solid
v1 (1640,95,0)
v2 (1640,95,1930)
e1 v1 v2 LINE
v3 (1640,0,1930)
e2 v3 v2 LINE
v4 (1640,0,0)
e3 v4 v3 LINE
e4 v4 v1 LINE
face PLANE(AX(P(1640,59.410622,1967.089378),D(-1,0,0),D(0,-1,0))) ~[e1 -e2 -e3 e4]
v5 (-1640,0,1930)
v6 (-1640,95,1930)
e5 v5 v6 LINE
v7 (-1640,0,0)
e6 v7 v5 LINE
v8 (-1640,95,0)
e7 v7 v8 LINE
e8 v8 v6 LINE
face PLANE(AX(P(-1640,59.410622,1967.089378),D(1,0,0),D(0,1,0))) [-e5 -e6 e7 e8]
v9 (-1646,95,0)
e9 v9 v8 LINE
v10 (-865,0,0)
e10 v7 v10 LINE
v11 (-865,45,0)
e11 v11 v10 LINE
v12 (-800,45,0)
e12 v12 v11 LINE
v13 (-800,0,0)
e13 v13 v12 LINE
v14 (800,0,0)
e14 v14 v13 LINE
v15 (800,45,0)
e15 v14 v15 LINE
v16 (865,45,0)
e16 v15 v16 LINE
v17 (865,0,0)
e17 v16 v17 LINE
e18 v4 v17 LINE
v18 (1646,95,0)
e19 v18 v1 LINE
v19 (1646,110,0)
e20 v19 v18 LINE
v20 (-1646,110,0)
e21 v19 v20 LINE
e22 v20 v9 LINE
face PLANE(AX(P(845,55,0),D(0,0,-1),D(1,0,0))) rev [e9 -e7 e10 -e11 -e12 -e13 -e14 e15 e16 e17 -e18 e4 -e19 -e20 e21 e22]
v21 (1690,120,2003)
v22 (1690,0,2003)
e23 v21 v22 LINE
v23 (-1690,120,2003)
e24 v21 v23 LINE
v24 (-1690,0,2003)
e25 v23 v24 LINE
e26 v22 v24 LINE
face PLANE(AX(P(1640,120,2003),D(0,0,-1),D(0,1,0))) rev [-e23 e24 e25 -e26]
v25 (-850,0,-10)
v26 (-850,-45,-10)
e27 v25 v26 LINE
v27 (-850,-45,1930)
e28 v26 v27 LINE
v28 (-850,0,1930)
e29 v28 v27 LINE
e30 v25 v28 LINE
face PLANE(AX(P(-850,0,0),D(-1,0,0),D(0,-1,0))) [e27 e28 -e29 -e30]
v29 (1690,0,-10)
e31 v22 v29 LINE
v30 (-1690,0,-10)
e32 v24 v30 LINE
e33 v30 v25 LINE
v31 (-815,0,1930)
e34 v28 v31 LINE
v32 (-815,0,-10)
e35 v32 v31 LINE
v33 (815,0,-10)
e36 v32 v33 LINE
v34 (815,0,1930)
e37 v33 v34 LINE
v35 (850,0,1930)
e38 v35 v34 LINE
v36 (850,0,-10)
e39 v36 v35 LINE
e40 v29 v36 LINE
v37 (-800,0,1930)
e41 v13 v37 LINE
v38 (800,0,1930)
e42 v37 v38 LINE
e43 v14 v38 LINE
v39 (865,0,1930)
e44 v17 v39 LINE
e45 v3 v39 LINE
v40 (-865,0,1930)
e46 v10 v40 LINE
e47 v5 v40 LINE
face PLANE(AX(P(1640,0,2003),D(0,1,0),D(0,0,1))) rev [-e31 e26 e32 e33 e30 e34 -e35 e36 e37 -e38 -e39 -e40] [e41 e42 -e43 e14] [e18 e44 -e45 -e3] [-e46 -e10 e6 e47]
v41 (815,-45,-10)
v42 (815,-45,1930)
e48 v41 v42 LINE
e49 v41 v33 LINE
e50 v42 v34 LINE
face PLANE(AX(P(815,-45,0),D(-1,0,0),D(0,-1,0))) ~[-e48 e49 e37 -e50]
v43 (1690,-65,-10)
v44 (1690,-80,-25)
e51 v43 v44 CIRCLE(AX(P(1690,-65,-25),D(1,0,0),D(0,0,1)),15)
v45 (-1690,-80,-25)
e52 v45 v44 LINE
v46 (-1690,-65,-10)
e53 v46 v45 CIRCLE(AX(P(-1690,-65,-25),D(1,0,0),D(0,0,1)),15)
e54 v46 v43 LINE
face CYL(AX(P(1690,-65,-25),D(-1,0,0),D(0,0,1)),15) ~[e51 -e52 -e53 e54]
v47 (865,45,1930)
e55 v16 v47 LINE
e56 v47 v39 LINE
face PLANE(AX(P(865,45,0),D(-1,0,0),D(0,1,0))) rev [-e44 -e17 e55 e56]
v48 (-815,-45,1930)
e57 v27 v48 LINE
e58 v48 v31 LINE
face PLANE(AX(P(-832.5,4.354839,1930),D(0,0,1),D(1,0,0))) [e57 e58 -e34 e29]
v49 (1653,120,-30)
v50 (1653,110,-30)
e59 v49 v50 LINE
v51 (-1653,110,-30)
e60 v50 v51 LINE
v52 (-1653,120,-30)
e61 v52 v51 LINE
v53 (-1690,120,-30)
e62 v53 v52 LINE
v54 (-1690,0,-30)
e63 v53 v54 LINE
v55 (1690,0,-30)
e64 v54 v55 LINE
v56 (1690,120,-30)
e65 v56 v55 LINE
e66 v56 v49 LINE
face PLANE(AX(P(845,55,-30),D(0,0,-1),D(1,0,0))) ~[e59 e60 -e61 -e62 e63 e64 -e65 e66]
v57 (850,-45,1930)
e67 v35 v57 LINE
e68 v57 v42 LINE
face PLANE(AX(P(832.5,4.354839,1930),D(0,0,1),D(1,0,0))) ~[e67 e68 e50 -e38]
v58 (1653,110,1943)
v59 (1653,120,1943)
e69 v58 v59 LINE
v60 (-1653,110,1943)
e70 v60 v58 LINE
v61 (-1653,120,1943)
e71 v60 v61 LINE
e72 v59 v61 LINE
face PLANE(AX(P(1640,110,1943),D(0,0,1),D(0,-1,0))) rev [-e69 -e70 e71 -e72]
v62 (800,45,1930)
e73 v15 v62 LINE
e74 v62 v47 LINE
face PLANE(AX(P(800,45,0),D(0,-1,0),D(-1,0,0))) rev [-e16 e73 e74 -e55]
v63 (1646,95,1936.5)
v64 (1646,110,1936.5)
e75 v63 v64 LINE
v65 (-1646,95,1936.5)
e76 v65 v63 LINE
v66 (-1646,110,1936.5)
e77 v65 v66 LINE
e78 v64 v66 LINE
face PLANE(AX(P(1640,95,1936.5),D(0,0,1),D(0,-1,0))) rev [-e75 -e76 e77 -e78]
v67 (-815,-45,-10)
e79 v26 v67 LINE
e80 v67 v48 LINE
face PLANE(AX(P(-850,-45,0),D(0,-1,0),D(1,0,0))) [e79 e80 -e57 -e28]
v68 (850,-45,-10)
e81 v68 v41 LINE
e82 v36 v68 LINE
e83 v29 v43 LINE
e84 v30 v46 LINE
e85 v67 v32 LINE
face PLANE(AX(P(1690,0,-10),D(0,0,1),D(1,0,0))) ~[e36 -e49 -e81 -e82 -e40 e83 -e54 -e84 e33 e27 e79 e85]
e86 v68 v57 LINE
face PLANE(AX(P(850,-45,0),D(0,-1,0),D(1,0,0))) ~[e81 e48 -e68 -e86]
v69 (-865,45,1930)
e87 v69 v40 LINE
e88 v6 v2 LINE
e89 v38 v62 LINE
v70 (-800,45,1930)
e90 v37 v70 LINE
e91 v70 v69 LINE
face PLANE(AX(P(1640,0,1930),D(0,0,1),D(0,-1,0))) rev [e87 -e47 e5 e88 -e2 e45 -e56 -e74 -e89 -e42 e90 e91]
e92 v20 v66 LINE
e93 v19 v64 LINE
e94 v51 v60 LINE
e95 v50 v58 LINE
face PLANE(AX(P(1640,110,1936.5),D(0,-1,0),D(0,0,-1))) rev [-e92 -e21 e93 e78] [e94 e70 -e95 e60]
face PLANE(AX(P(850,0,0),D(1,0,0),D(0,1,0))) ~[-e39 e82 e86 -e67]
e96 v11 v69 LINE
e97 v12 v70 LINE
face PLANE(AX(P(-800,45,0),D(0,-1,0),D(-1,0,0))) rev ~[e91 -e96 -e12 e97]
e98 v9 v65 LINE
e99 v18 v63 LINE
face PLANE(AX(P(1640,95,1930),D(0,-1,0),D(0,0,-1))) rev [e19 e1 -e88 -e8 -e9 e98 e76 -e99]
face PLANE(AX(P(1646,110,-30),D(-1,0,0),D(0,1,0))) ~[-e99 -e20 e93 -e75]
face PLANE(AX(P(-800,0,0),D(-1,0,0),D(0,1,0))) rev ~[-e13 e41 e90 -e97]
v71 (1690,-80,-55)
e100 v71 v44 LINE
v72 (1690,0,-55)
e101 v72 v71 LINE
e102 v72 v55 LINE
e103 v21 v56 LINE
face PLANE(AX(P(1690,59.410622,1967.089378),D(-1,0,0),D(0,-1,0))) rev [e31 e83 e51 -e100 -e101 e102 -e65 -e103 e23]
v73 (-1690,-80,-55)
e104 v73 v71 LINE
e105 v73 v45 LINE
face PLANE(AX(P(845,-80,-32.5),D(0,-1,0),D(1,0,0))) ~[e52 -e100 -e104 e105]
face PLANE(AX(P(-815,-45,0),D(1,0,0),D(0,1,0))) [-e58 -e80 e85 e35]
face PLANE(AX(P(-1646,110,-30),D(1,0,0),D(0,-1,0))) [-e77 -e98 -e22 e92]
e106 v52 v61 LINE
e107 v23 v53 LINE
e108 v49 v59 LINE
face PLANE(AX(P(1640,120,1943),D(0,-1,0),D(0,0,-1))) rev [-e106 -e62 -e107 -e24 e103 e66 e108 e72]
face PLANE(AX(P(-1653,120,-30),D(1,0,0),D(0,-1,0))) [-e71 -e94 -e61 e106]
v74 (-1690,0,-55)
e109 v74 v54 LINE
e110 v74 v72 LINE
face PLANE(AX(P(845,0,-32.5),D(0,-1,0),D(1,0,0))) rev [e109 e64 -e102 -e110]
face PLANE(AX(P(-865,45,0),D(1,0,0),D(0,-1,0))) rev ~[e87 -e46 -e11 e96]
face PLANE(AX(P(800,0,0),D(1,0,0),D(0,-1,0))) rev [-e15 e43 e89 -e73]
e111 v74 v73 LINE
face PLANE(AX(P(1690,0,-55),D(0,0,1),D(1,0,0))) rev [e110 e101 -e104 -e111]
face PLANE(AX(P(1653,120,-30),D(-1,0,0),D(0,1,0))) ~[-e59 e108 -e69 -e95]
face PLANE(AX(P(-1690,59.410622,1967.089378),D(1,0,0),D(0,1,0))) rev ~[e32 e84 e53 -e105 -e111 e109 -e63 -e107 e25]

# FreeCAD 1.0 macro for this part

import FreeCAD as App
import Part
import Sketcher
from FreeCAD import Vector
Q = App.Units.Quantity


def edges_at(feature, points):
    """Names of the edges that pass closest to the given points."""
    edges = feature.Shape.Edges
    near = lambda p: min(range(len(edges)), key=lambda i: edges[i].distToShape(Part.Vertex(*p))[0])
    return sorted({f"Edge{near(p) + 1}" for p in points})


def add_polygon(sketch, points):
    """Adds a closed chain of lines whose ends are joined by coincident constraints."""
    first, n = sketch.GeometryCount, len(points)
    for a, b in zip(points, points[1:] + points[:1]):
        sketch.addGeometry(Part.LineSegment(App.Vector(*a, 0), App.Vector(*b, 0)), False)
    for i in range(n):
        sketch.addConstraint(Sketcher.Constraint("Coincident", first + i, 2, first + (i + 1) % n, 1))

doc = App.newDocument("Part")
body = doc.addObject("PartDesign::Body", "Body")
body.AllowCompound = True

# Sketch on XY plane
sketch1 = doc.addObject("Sketcher::SketchObject", "Sketch")
body.addObject(sketch1)
sketch1.AttachmentSupport = (doc.XY_Plane, [""])
sketch1.MapMode = "FlatFace"
add_polygon(sketch1, [(-815, 0), (-800, 0), (-800, 45), (-865, 45), (-865, 0), (-850, 0), (-850, -45), (-815, -45)])  # lines 0-7
add_polygon(sketch1, [(-1690, 95), (-1690, 0), (-1640, 0), (-1640, 95)])  # lines 8-11
sketch1.addConstraint([
    Sketcher.Constraint("Horizontal", 0),
    Sketcher.Constraint("Vertical", 1),
    Sketcher.Constraint("Horizontal", 2),
    Sketcher.Constraint("Vertical", 3),
    Sketcher.Constraint("Horizontal", 4),
    Sketcher.Constraint("Vertical", 5),
    Sketcher.Constraint("Horizontal", 6),
    Sketcher.Constraint("Vertical", 7),
    Sketcher.Constraint("Vertical", 8),
    Sketcher.Constraint("Horizontal", 9),
    Sketcher.Constraint("Vertical", 10),
    Sketcher.Constraint("Horizontal", 11),
    Sketcher.Constraint("PointOnObject", 0, 2, -1),
    Sketcher.Constraint("PointOnObject", 3, 2, -1),
    Sketcher.Constraint("PointOnObject", 8, 2, -1),
    Sketcher.Constraint("Equal", 0, 4),
    Sketcher.Constraint("Equal", 3, 5),
    Sketcher.Constraint("DistanceX", 0, 1, 0, 2, Q("15 mm")),
    Sketcher.Constraint("DistanceX", 2, 2, 2, 1, Q("65 mm")),
    Sketcher.Constraint("DistanceX", 9, 1, 9, 2, Q("50 mm")),
    Sketcher.Constraint("DistanceY", 1, 1, 1, 2, Q("45 mm")),
    Sketcher.Constraint("DistanceY", 8, 2, 8, 1, Q("95 mm")),
    Sketcher.Constraint("DistanceX", 0, 2, -1, 1, Q("800 mm")),
    Sketcher.Constraint("DistanceX", 8, 2, -1, 1, Q("1690 mm")),
])
pad1 = doc.addObject("PartDesign::Pad", "Pad")
body.addObject(pad1)
pad1.Profile = sketch1
pad1.Length = 1930

# Sketch on XY plane
sketch2 = doc.addObject("Sketcher::SketchObject", "Sketch001")
body.addObject(sketch2)
sketch2.AttachmentSupport = (doc.XY_Plane, [""])
sketch2.MapMode = "FlatFace"
add_polygon(sketch2, [(-1690, 0), (-1690, 110), (0, 110), (0, 0)])  # lines 0-3
sketch2.addConstraint([
    Sketcher.Constraint("Vertical", 0),
    Sketcher.Constraint("Horizontal", 1),
    Sketcher.Constraint("Vertical", 2),
    Sketcher.Constraint("Horizontal", 3),
    Sketcher.Constraint("Coincident", 2, 2, -1, 1),
    Sketcher.Constraint("DistanceX", 1, 1, 1, 2, Q("1690 mm")),
    Sketcher.Constraint("DistanceY", 0, 1, 0, 2, Q("110 mm")),
])
pad2 = doc.addObject("PartDesign::Pad", "Pad001")
body.addObject(pad2)
pad2.Profile = sketch2
pad2.Length = 30
pad2.Reversed = True

# Sketch on XZ plane
sketch3 = doc.addObject("Sketcher::SketchObject", "Sketch002")
body.addObject(sketch3)
sketch3.AttachmentSupport = (doc.XZ_Plane, [""])
sketch3.MapMode = "FlatFace"
add_polygon(sketch3, [(-1690, -10), (-1690, -55), (0, -55), (0, -10)])  # lines 0-3
sketch3.addConstraint([
    Sketcher.Constraint("Vertical", 0),
    Sketcher.Constraint("Horizontal", 1),
    Sketcher.Constraint("Vertical", 2),
    Sketcher.Constraint("Horizontal", 3),
    Sketcher.Constraint("PointOnObject", 1, 2, -2),
    Sketcher.Constraint("DistanceX", 1, 1, 1, 2, Q("1690 mm")),
    Sketcher.Constraint("DistanceY", 0, 2, 0, 1, Q("45 mm")),
    Sketcher.Constraint("DistanceY", 0, 2, -1, 1, Q("55 mm")),
])
pad3 = doc.addObject("PartDesign::Pad", "Pad002")
body.addObject(pad3)
pad3.Profile = sketch3
pad3.Length = 80

# Sketch on XY plane
sketch4 = doc.addObject("Sketcher::SketchObject", "Sketch003")
body.addObject(sketch4)
sketch4.AttachmentSupport = (doc.XY_Plane, [""])
sketch4.MapMode = "FlatFace"
add_polygon(sketch4, [(-815, 0), (-800, 0), (-800, 45), (-865, 45), (-865, 0), (-850, 0), (-850, -45), (-815, -45)])  # lines 0-7
add_polygon(sketch4, [(-1690, 95), (-1690, 0), (-1640, 0), (-1640, 95)])  # lines 8-11
sketch4.addConstraint([
    Sketcher.Constraint("Horizontal", 0),
    Sketcher.Constraint("Vertical", 1),
    Sketcher.Constraint("Horizontal", 2),
    Sketcher.Constraint("Vertical", 3),
    Sketcher.Constraint("Horizontal", 4),
    Sketcher.Constraint("Vertical", 5),
    Sketcher.Constraint("Horizontal", 6),
    Sketcher.Constraint("Vertical", 7),
    Sketcher.Constraint("Vertical", 8),
    Sketcher.Constraint("Horizontal", 9),
    Sketcher.Constraint("Vertical", 10),
    Sketcher.Constraint("Horizontal", 11),
    Sketcher.Constraint("PointOnObject", 0, 2, -1),
    Sketcher.Constraint("PointOnObject", 3, 2, -1),
    Sketcher.Constraint("PointOnObject", 8, 2, -1),
    Sketcher.Constraint("Equal", 0, 4),
    Sketcher.Constraint("Equal", 3, 5),
    Sketcher.Constraint("DistanceX", 0, 1, 0, 2, Q("15 mm")),
    Sketcher.Constraint("DistanceX", 2, 2, 2, 1, Q("65 mm")),
    Sketcher.Constraint("DistanceX", 9, 1, 9, 2, Q("50 mm")),
    Sketcher.Constraint("DistanceY", 1, 1, 1, 2, Q("45 mm")),
    Sketcher.Constraint("DistanceY", 8, 2, 8, 1, Q("95 mm")),
    Sketcher.Constraint("DistanceX", 0, 2, -1, 1, Q("800 mm")),
    Sketcher.Constraint("DistanceX", 8, 2, -1, 1, Q("1690 mm")),
])
pad4 = doc.addObject("PartDesign::Pad", "Pad003")
body.addObject(pad4)
pad4.Profile = sketch4
pad4.Length = 25
pad4.Reversed = True
doc.recompute()

fillet = doc.addObject("PartDesign::Fillet", "Fillet")
body.addObject(fillet)
fillet.Base = (pad4, edges_at(pad4, [(-845, -80, -10)]))
fillet.Radius = 15

# Sketch on XY plane
sketch5 = doc.addObject("Sketcher::SketchObject", "Sketch004")
body.addObject(sketch5)
sketch5.AttachmentSupport = (doc.XY_Plane, [""])
sketch5.MapMode = "FlatFace"
sketch5.AttachmentOffset = App.Placement(Vector(0, 0, -30), App.Rotation())
add_polygon(sketch5, [(-1690, 90), (-1690, 120), (-1653, 120), (-1653, 110), (-1646, 110), (-1646, 90)])  # lines 0-5
sketch5.addConstraint([
    Sketcher.Constraint("Vertical", 0),
    Sketcher.Constraint("Horizontal", 1),
    Sketcher.Constraint("Vertical", 2),
    Sketcher.Constraint("Horizontal", 3),
    Sketcher.Constraint("Vertical", 4),
    Sketcher.Constraint("Horizontal", 5),
    Sketcher.Constraint("DistanceX", 1, 1, 1, 2, Q("37 mm")),
    Sketcher.Constraint("DistanceX", 3, 1, 3, 2, Q("7 mm")),
    Sketcher.Constraint("DistanceY", 0, 1, 0, 2, Q("30 mm")),
    Sketcher.Constraint("DistanceY", 2, 2, 2, 1, Q("10 mm")),
    Sketcher.Constraint("DistanceX", 0, 2, -1, 1, Q("1690 mm")),
    Sketcher.Constraint("DistanceY", -1, 1, 0, 2, Q("120 mm")),
])
pad5 = doc.addObject("PartDesign::Pad", "Pad004")
body.addObject(pad5)
pad5.Profile = sketch5
pad5.Length = 2033

# Sketch on YZ plane
sketch6 = doc.addObject("Sketcher::SketchObject", "Sketch005")
body.addObject(sketch6)
sketch6.AttachmentSupport = (doc.YZ_Plane, [""])
sketch6.MapMode = "FlatFace"
sketch6.AttachmentOffset = App.Placement(Vector(0, 0, -1640), App.Rotation())
add_polygon(sketch6, [(0, 2003), (0, 1930), (95, 1930), (95, 1936), (110, 1936), (110, 1943), (120, 1943), (120, 2003)])  # lines 0-7
sketch6.addConstraint([
    Sketcher.Constraint("Vertical", 0),
    Sketcher.Constraint("Horizontal", 1),
    Sketcher.Constraint("Vertical", 2),
    Sketcher.Constraint("Horizontal", 3),
    Sketcher.Constraint("Vertical", 4),
    Sketcher.Constraint("Horizontal", 5),
    Sketcher.Constraint("Vertical", 6),
    Sketcher.Constraint("Horizontal", 7),
    Sketcher.Constraint("PointOnObject", 0, 2, -2),
    Sketcher.Constraint("Equal", 2, 4),
    Sketcher.Constraint("DistanceX", 1, 1, 1, 2, Q("95 mm")),
    Sketcher.Constraint("DistanceX", 3, 1, 3, 2, Q("15 mm")),
    Sketcher.Constraint("DistanceX", 5, 1, 5, 2, Q("10 mm")),
    Sketcher.Constraint("DistanceY", 0, 2, 0, 1, Q("73 mm")),
    Sketcher.Constraint("DistanceY", 6, 1, 6, 2, Q("60 mm")),
    Sketcher.Constraint("DistanceY", -1, 1, 0, 2, Q("1930 mm")),
])
pad6 = doc.addObject("PartDesign::Pad", "Pad005")
body.addObject(pad6)
pad6.Profile = sketch6
pad6.Length = 50
pad6.Reversed = True

# Sketch on YZ plane
sketch7 = doc.addObject("Sketcher::SketchObject", "Sketch006")
body.addObject(sketch7)
sketch7.AttachmentSupport = (doc.YZ_Plane, [""])
sketch7.MapMode = "FlatFace"
sketch7.AttachmentOffset = App.Placement(Vector(0, 0, -1640), App.Rotation())
add_polygon(sketch7, [(0, 2003), (0, 1930), (95, 1930), (95, 1936), (110, 1936), (110, 1943), (120, 1943), (120, 2003)])  # lines 0-7
sketch7.addConstraint([
    Sketcher.Constraint("Vertical", 0),
    Sketcher.Constraint("Horizontal", 1),
    Sketcher.Constraint("Vertical", 2),
    Sketcher.Constraint("Horizontal", 3),
    Sketcher.Constraint("Vertical", 4),
    Sketcher.Constraint("Horizontal", 5),
    Sketcher.Constraint("Vertical", 6),
    Sketcher.Constraint("Horizontal", 7),
    Sketcher.Constraint("PointOnObject", 0, 2, -2),
    Sketcher.Constraint("Equal", 2, 4),
    Sketcher.Constraint("DistanceX", 1, 1, 1, 2, Q("95 mm")),
    Sketcher.Constraint("DistanceX", 3, 1, 3, 2, Q("15 mm")),
    Sketcher.Constraint("DistanceX", 5, 1, 5, 2, Q("10 mm")),
    Sketcher.Constraint("DistanceY", 0, 2, 0, 1, Q("73 mm")),
    Sketcher.Constraint("DistanceY", 6, 1, 6, 2, Q("60 mm")),
    Sketcher.Constraint("DistanceY", -1, 1, 0, 2, Q("1930 mm")),
])
pad7 = doc.addObject("PartDesign::Pad", "Pad006")
body.addObject(pad7)
pad7.Profile = sketch7
pad7.Length = 1640
body2 = doc.addObject("PartDesign::Body", "Body001")
doc.recompute()

body2.BaseFeature = body
doc.recompute()

mirroring = doc.addObject("Part::Mirroring", "Mirroring")
mirroring.Source = body
mirroring.Base = Vector(0, 0, 0)
mirroring.Normal = Vector(1, 0, 0)
body3 = doc.addObject("PartDesign::Body", "Body002")
body3.BaseFeature = mirroring
boolean = doc.addObject("PartDesign::Boolean", "Boolean")
body2.addObject(boolean)
boolean.Type = "Fuse"
boolean.addObjects([body3])
doc.recompute()
mirroring.Visibility = False

doc.recompute()
